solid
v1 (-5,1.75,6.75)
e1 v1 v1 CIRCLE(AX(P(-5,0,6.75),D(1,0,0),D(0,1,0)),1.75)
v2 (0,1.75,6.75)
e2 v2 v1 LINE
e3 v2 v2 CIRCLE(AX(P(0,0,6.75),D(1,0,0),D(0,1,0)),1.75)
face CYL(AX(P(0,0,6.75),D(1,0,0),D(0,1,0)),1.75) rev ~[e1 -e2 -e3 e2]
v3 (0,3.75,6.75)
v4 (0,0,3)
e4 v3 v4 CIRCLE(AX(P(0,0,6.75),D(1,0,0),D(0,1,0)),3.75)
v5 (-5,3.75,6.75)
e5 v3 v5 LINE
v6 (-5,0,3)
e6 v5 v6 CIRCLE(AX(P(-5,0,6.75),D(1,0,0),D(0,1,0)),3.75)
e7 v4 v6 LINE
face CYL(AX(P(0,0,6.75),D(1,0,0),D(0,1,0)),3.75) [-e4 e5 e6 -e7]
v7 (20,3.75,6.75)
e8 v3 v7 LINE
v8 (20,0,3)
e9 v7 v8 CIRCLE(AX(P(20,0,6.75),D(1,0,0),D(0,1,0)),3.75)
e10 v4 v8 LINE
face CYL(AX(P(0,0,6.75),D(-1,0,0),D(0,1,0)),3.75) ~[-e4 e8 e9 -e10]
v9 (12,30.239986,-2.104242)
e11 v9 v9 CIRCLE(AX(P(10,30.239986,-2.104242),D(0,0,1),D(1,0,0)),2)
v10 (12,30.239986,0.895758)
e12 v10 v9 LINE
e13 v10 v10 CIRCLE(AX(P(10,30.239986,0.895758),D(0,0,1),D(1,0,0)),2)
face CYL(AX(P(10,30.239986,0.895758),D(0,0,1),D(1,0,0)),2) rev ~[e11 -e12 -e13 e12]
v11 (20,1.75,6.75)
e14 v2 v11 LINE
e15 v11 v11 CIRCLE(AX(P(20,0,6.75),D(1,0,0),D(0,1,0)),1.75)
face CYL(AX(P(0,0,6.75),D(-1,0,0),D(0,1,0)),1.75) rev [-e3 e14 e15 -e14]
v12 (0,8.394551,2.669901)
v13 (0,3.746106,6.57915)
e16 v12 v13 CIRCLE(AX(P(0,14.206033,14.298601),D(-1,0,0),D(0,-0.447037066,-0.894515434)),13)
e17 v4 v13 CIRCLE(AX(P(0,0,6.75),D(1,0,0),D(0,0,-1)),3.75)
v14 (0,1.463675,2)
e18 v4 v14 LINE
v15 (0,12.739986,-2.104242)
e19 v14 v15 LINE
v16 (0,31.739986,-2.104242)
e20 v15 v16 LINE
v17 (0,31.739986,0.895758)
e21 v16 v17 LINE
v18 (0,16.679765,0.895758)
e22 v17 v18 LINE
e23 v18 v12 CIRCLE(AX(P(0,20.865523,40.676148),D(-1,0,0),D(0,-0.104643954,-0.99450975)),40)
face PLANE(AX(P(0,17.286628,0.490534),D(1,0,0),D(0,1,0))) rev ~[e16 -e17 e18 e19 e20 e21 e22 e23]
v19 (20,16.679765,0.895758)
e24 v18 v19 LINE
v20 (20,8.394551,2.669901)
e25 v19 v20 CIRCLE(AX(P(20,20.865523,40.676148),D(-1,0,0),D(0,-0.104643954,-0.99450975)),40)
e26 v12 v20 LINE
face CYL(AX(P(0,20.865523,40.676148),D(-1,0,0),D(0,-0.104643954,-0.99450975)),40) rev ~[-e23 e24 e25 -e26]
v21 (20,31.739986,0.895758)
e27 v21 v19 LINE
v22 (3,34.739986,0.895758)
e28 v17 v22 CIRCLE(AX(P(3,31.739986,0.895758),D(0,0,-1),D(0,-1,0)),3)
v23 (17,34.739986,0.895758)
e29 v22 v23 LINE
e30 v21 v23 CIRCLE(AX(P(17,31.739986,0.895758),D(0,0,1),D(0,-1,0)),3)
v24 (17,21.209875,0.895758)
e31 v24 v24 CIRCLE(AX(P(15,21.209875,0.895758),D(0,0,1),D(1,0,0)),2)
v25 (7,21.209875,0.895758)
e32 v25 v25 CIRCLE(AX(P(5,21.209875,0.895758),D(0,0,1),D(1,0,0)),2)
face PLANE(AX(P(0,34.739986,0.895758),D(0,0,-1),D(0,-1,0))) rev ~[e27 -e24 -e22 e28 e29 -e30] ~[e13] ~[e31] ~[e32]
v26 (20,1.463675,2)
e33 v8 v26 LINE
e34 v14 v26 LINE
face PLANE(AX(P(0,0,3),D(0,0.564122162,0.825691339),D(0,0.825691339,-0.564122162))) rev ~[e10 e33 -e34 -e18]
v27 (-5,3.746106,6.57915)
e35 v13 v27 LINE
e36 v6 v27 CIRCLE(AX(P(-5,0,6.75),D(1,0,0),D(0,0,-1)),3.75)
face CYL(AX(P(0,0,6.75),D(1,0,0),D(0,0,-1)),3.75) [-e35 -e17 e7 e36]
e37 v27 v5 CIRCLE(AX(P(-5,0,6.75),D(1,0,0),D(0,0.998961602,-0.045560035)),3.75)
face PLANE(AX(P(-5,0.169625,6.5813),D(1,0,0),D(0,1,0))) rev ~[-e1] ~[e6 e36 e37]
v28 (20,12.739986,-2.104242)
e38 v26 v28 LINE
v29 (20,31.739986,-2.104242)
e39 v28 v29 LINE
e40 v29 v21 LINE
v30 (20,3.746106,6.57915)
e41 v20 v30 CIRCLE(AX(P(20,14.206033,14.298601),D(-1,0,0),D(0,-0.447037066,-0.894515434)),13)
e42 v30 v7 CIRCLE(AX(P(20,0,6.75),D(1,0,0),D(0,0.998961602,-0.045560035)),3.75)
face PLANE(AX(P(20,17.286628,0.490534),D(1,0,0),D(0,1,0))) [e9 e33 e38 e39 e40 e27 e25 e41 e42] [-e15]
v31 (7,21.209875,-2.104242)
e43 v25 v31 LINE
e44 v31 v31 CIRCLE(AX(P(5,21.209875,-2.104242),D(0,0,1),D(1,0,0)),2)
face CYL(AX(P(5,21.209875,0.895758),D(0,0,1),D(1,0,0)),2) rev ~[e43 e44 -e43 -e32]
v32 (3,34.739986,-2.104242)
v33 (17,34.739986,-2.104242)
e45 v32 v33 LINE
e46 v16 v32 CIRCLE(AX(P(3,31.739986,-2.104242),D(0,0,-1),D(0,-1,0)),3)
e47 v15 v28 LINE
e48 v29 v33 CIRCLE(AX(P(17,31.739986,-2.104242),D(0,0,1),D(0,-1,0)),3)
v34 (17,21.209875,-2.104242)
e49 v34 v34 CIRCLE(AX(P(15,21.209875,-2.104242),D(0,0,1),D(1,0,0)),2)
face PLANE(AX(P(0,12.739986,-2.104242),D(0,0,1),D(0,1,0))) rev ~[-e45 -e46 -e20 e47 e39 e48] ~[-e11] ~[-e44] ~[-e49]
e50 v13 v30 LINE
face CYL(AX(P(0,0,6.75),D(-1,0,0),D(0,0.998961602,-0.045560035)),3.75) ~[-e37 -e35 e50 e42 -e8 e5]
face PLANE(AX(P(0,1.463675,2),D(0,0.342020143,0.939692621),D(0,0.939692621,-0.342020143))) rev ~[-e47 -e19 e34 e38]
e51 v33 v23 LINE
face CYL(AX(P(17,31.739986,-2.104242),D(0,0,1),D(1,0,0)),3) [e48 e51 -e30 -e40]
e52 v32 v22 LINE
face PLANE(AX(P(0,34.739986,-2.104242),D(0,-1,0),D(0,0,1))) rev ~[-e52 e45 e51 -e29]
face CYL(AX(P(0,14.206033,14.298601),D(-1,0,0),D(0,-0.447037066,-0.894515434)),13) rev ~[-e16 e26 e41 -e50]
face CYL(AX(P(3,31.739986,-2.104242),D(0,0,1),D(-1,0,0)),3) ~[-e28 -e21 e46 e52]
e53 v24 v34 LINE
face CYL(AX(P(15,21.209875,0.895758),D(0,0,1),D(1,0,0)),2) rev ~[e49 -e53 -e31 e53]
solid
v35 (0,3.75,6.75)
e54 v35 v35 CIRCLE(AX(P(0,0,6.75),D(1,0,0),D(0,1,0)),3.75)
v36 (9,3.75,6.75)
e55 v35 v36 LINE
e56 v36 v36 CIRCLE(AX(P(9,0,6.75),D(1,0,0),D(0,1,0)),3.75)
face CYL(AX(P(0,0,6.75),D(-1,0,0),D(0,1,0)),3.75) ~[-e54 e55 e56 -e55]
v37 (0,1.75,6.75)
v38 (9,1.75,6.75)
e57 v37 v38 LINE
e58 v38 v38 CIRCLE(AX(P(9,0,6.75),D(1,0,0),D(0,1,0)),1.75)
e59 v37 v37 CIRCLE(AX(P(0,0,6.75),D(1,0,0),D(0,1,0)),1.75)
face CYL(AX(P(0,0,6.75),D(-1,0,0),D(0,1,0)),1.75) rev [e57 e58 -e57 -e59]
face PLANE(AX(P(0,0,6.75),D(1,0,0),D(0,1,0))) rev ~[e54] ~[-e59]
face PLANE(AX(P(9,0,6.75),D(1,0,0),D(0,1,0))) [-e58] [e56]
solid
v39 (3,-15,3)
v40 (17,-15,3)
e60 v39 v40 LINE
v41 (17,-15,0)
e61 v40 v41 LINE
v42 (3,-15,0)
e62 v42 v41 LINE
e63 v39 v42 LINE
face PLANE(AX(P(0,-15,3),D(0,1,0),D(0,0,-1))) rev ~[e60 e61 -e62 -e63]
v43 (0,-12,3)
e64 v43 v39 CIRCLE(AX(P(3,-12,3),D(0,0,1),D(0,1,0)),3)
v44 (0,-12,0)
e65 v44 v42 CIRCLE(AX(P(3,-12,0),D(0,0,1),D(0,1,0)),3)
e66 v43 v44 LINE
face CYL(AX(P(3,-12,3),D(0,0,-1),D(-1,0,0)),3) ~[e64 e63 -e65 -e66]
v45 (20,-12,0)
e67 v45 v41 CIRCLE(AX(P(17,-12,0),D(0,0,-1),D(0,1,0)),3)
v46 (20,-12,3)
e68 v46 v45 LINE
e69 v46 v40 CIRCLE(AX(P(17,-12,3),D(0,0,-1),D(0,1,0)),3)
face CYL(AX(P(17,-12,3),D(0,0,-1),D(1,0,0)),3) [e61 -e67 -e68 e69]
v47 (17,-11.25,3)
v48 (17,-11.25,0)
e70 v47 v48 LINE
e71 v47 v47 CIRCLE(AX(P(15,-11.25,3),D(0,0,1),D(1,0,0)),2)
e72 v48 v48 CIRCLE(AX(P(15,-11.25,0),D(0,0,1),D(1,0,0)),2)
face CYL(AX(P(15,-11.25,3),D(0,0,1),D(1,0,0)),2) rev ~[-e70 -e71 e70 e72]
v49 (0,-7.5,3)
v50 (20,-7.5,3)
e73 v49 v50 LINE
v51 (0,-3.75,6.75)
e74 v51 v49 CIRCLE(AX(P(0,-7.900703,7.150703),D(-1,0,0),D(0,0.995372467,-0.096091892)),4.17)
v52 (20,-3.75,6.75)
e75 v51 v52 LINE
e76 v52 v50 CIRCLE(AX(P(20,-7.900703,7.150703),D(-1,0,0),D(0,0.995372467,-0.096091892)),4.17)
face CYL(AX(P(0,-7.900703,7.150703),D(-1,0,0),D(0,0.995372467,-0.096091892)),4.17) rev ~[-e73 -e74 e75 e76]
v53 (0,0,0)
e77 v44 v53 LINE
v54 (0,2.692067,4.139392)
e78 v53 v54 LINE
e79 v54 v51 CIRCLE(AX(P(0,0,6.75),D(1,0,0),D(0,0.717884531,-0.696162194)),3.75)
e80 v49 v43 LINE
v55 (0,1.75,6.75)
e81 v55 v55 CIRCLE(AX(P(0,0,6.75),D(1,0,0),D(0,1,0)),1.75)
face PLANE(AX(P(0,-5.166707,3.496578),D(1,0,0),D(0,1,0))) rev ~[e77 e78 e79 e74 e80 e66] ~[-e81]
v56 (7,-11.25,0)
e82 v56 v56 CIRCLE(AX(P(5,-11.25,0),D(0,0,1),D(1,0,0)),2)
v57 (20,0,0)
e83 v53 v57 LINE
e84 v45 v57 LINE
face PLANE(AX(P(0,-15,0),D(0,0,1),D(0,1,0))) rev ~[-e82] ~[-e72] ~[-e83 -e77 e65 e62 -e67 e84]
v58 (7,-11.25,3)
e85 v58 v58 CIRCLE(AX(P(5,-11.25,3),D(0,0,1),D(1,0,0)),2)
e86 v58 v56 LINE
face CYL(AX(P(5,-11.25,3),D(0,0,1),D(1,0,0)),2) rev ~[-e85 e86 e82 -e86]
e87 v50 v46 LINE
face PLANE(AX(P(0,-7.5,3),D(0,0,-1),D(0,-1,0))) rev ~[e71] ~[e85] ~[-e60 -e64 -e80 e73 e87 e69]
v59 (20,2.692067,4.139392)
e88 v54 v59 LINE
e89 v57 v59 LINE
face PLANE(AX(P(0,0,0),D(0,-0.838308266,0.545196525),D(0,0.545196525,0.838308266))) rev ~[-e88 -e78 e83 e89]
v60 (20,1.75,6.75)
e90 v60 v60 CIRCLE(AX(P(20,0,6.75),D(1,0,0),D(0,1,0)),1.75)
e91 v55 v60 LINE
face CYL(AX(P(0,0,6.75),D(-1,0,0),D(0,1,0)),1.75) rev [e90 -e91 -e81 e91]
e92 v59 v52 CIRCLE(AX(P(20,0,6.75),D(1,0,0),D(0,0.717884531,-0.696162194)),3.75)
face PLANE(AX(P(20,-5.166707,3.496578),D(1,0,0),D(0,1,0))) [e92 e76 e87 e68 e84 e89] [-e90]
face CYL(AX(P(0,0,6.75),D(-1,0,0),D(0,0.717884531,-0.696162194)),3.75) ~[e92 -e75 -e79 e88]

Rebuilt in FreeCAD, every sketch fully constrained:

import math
import FreeCAD as App
import Part
import Sketcher
Q = App.Units.Quantity


def edges_at(feature, points):
    """Names of the edges that pass closest to the given points."""
    edges = feature.Shape.Edges
    near = lambda p: min(range(len(edges)), key=lambda i: edges[i].distToShape(Part.Vertex(*p))[0])
    return sorted({f"Edge{near(p) + 1}" for p in points})

doc = App.newDocument("Part")
body = doc.addObject("PartDesign::Body", "Body")

# Sketch on YZ plane
sketch1 = body.newObject("Sketcher::SketchObject", "Sketch")
sketch1.AttachmentSupport = (doc.getObject("YZ_Plane"), [""])
sketch1.MapMode = "FlatFace"
sketch1.addGeometry([
    Part.LineSegment(App.Vector(0, 0, 0), App.Vector(2.7, 4.1, 0)),  # 0
    Part.ArcOfCircle(Part.Circle(App.Vector(0, 6.8, 0), App.Vector(0, 0, 1), 3.8), math.radians(-44), math.radians(180)),  # 1
    Part.ArcOfCircle(Part.Circle(App.Vector(-7.9, 7.2, 0), App.Vector(0, 0, 1), 4.2), math.radians(-84), math.radians(-6)),  # 2
    Part.LineSegment(App.Vector(-7.5, 3, 0), App.Vector(-15, 3, 0)),  # 3
    Part.LineSegment(App.Vector(-15, 3, 0), App.Vector(-15, 0, 0)),  # 4
    Part.LineSegment(App.Vector(-15, 0, 0), App.Vector(0, 0, 0)),  # 5
    Part.Circle(App.Vector(0, 6.8, 0), App.Vector(0, 0, 1), 1.8),  # 6
], False)
sketch1.addConstraint([
    Sketcher.Constraint("Coincident", 0, 2, 1, 1),
    Sketcher.Constraint("Coincident", 1, 2, 2, 2),
    Sketcher.Constraint("Coincident", 2, 1, 3, 1),
    Sketcher.Constraint("Coincident", 3, 2, 4, 1),
    Sketcher.Constraint("Coincident", 4, 2, 5, 1),
    Sketcher.Constraint("Coincident", 5, 2, 0, 1),
    Sketcher.Constraint("Horizontal", 3),
    Sketcher.Constraint("Vertical", 4),
    Sketcher.Constraint("Horizontal", 5),
    Sketcher.Constraint("Coincident", 5, 2, -1, 1),
    Sketcher.Constraint("Coincident", 6, 3, 1, 3),
    Sketcher.Constraint("PointOnObject", 1, 3, -2),
    Sketcher.Constraint("Horizontal", 6, 3, 1, 2),
    Sketcher.Constraint("Diameter", 6, Q("3.5 mm")),
    Sketcher.Constraint("DistanceX", 5, 1, 5, 2, Q("15 mm")),
    Sketcher.Constraint("DistanceY", 4, 2, 4, 1, Q("3 mm")),
    Sketcher.Constraint("Radius", 1, Q("3.75 mm")),
    Sketcher.Constraint("Radius", 2, Q("4.17 mm")),
    Sketcher.Constraint("DistanceX", 3, 2, 3, 1, Q("7.5 mm")),
    Sketcher.Constraint("DistanceY", -1, 1, 1, 3, Q("6.75 mm")),
    Sketcher.Constraint("Distance", 0, Q("4.937792 mm")),
])
pad1 = body.newObject("PartDesign::Pad", "Pad")
pad1.Profile = sketch1
pad1.Length = 20

# Sketch on XY plane
sketch2 = body.newObject("Sketcher::SketchObject", "Sketch001")
sketch2.AttachmentSupport = (doc.getObject("XY_Plane"), [""])
sketch2.MapMode = "FlatFace"
sketch2.AttachmentOffset = App.Placement(App.Vector(0, 0, 3), App.Rotation())
sketch2.addGeometry([
    Part.Circle(App.Vector(5, -11.2, 0), App.Vector(0, 0, 1), 2),
    Part.Circle(App.Vector(15, -11.2, 0), App.Vector(0, 0, 1), 2),
], False)
sketch2.addConstraint([
    Sketcher.Constraint("Equal", 0, 1),
    Sketcher.Constraint("Horizontal", 0, 3, 1, 3),
    Sketcher.Constraint("Diameter", 0, Q("4 mm")),
    Sketcher.Constraint("DistanceX", -1, 1, 0, 3, Q("5 mm")),
    Sketcher.Constraint("DistanceX", -1, 1, 1, 3, Q("15 mm")),
    Sketcher.Constraint("DistanceY", 0, 3, -1, 1, Q("11.25 mm")),
])
pocket1 = body.newObject("PartDesign::Pocket", "Pocket")
pocket1.Profile = sketch2
pocket1.Type = "ThroughAll"
doc.recompute()

fillet = body.newObject("PartDesign::Fillet", "Fillet")
fillet.Base = (pocket1, edges_at(pocket1, [(0, -15, 1.5), (20, -15, 1.5)]))
fillet.Radius = 3
body2 = doc.addObject("PartDesign::Body", "Body001")

# Sketch on YZ plane
sketch3 = body2.newObject("Sketcher::SketchObject", "Sketch002")
sketch3.AttachmentSupport = (doc.getObject("YZ_Plane001"), [""])
sketch3.MapMode = "FlatFace"
sketch3.addGeometry([
    Part.ArcOfCircle(Part.Circle(App.Vector(0, 6.75, 0), App.Vector(0, 0, 1), 3.75), math.radians(-2.61), math.radians(0)),
    Part.ArcOfCircle(Part.Circle(App.Vector(0, 6.75, 0), App.Vector(0, 0, 1), 3.75), math.radians(0), math.radians(270)),
    Part.ArcOfCircle(Part.Circle(App.Vector(0, 6.75, 0), App.Vector(0, 0, 1), 3.75), math.radians(-90), math.radians(-3)),
    Part.Circle(App.Vector(0, 6.75, 0), App.Vector(0, 0, 1), 1.75),
], False)
sketch3.addConstraint([
    Sketcher.Constraint("Tangent", 0, 2, 1, 1),
    Sketcher.Constraint("Tangent", 1, 2, 2, 1),
    Sketcher.Constraint("Tangent", 2, 2, 0, 1),
    Sketcher.Constraint("Coincident", 3, 3, 0, 3),
    Sketcher.Constraint("PointOnObject", 0, 3, -2),
    Sketcher.Constraint("PointOnObject", 1, 2, -2),
    Sketcher.Constraint("Horizontal", 3, 3, 0, 2),
    Sketcher.Constraint("Diameter", 3, Q("3.5 mm")),
    Sketcher.Constraint("Radius", 0, Q("3.75 mm")),
    Sketcher.Constraint("DistanceY", -1, 1, 1, 2, Q("3 mm")),
    Sketcher.Constraint("DistanceY", -1, 1, 2, 2, Q("6.57915 mm")),
])
pad2 = body2.newObject("PartDesign::Pad", "Pad001")
pad2.Profile = sketch3
pad2.Length = 5
pad2.Reversed = True

# Sketch on YZ plane
sketch4 = body2.newObject("Sketcher::SketchObject", "Sketch003")
sketch4.AttachmentSupport = (doc.getObject("YZ_Plane001"), [""])
sketch4.MapMode = "FlatFace"
sketch4.addGeometry([
    Part.LineSegment(App.Vector(0, 3, 0), App.Vector(1.46, 2, 0)),  # 0
    Part.LineSegment(App.Vector(1.46, 2, 0), App.Vector(12.74, -2.1, 0)),  # 1
    Part.LineSegment(App.Vector(12.74, -2.1, 0), App.Vector(34.74, -2.1, 0)),  # 2
    Part.LineSegment(App.Vector(34.74, -2.1, 0), App.Vector(34.74, 0.9, 0)),  # 3
    Part.LineSegment(App.Vector(34.74, 0.9, 0), App.Vector(16.68, 0.9, 0)),  # 4
    Part.ArcOfCircle(Part.Circle(App.Vector(20.87, 40.68, 0), App.Vector(0, 0, 1), 40), math.radians(-108.17), math.radians(-96.01)),  # 5
    Part.ArcOfCircle(Part.Circle(App.Vector(14.21, 14.3, 0), App.Vector(0, 0, 1), 13), math.radians(-144), math.radians(-117)),  # 6
    Part.ArcOfCircle(Part.Circle(App.Vector(0, 6.75, 0), App.Vector(0, 0, 1), 3.75), math.radians(-2.61), math.radians(0)),  # 7
    Part.ArcOfCircle(Part.Circle(App.Vector(0, 6.75, 0), App.Vector(0, 0, 1), 3.75), math.radians(0), math.radians(270)),  # 8
    Part.Circle(App.Vector(0, 6.75, 0), App.Vector(0, 0, 1), 1.75),  # 9
], False)
sketch4.addConstraint([
    Sketcher.Constraint("Coincident", 0, 2, 1, 1),
    Sketcher.Constraint("Coincident", 1, 2, 2, 1),
    Sketcher.Constraint("Coincident", 2, 2, 3, 1),
    Sketcher.Constraint("Coincident", 3, 2, 4, 1),
    Sketcher.Constraint("Coincident", 4, 2, 5, 2),
    Sketcher.Constraint("Coincident", 5, 1, 6, 2),
    Sketcher.Constraint("Coincident", 6, 1, 7, 1),
    Sketcher.Constraint("Tangent", 7, 2, 8, 1),
    Sketcher.Constraint("Coincident", 8, 2, 0, 1),
    Sketcher.Constraint("Horizontal", 2),
    Sketcher.Constraint("Vertical", 3),
    Sketcher.Constraint("Horizontal", 4),
    Sketcher.Constraint("Coincident", 9, 3, 7, 3),
    Sketcher.Constraint("Equal", 7, 8),
    Sketcher.Constraint("PointOnObject", 7, 3, -2),
    Sketcher.Constraint("PointOnObject", 8, 2, -2),
    Sketcher.Constraint("Horizontal", 9, 3, 7, 2),
    Sketcher.Constraint("Radius", 5, Q("40 mm")),
    Sketcher.Constraint("Radius", 6, Q("13 mm")),
    Sketcher.Constraint("Diameter", 9, Q("3.5 mm")),
    Sketcher.Constraint("DistanceX", 2, 1, 2, 2, Q("22 mm")),
    Sketcher.Constraint("DistanceY", 3, 1, 3, 2, Q("3 mm")),
    Sketcher.Constraint("Angle", 1, Q("-20 deg")),
    Sketcher.Constraint("Radius", 7, Q("3.75 mm")),
    Sketcher.Constraint("Distance", 1, Q("12 mm")),
    Sketcher.Constraint("DistanceY", -1, 1, 0, 2, Q("2 mm")),
    Sketcher.Constraint("DistanceY", -1, 1, 8, 2, Q("3 mm")),
    Sketcher.Constraint("DistanceX", 4, 2, 4, 1, Q("18.060221 mm")),
    Sketcher.Constraint("DistanceY", -1, 1, 6, 3, Q("14.298601 mm")),
    Sketcher.Constraint("DistanceY", -1, 1, 5, 1, Q("2.669901 mm")),
    Sketcher.Constraint("DistanceY", -1, 1, 5, 3, Q("40.676148 mm")),
    Sketcher.Constraint("DistanceX", -1, 1, 5, 1, Q("8.394551 mm")),
])
pad3 = body2.newObject("PartDesign::Pad", "Pad002")
pad3.Profile = sketch4
pad3.Length = 20
doc.recompute()

fillet2 = body2.newObject("PartDesign::Fillet", "Fillet001")
fillet2.Base = (pad3, edges_at(pad3, [(20, 34.74, -0.604), (0, 34.74, -0.604)]))
fillet2.Radius = 3

# Sketch on XY plane
sketch5 = body2.newObject("Sketcher::SketchObject", "Sketch004")
sketch5.AttachmentSupport = (doc.getObject("XY_Plane001"), [""])
sketch5.MapMode = "FlatFace"
sketch5.AttachmentOffset = App.Placement(App.Vector(0, 0, 0.895758), App.Rotation())
sketch5.addGeometry([
    Part.Circle(App.Vector(10, 30.2, 0), App.Vector(0, 0, 1), 2),
    Part.Circle(App.Vector(5, 21.2, 0), App.Vector(0, 0, 1), 2),
    Part.Circle(App.Vector(15, 21.2, 0), App.Vector(0, 0, 1), 2),
], False)
sketch5.addConstraint([
    Sketcher.Constraint("Equal", 0, 1),
    Sketcher.Constraint("Equal", 1, 2),
    Sketcher.Constraint("Horizontal", 1, 3, 2, 3),
    Sketcher.Constraint("Diameter", 0, Q("4 mm")),
    Sketcher.Constraint("DistanceX", -1, 1, 0, 3, Q("10 mm")),
    Sketcher.Constraint("DistanceX", -1, 1, 1, 3, Q("5 mm")),
    Sketcher.Constraint("DistanceX", -1, 1, 2, 3, Q("15 mm")),
    Sketcher.Constraint("DistanceY", 1, 3, 0, 3, Q("9.030111 mm")),
    Sketcher.Constraint("DistanceY", -1, 1, 0, 3, Q("30.239986 mm")),
])
pocket2 = body2.newObject("PartDesign::Pocket", "Pocket001")
pocket2.Profile = sketch5
pocket2.Type = "ThroughAll"
body3 = doc.addObject("PartDesign::Body", "Body002")

# Sketch on YZ plane
sketch6 = body3.newObject("Sketcher::SketchObject", "Sketch005")
sketch6.AttachmentSupport = (doc.getObject("YZ_Plane002"), [""])
sketch6.MapMode = "FlatFace"
sketch6.addGeometry([
    Part.Circle(App.Vector(0, 6.8, 0), App.Vector(0, 0, 1), 3.8),
    Part.Circle(App.Vector(0, 6.8, 0), App.Vector(0, 0, 1), 1.8),
], False)
sketch6.addConstraint([
    Sketcher.Constraint("Coincident", 1, 3, 0, 3),
    Sketcher.Constraint("PointOnObject", 0, 3, -2),
    Sketcher.Constraint("Diameter", 0, Q("7.5 mm")),
    Sketcher.Constraint("Diameter", 1, Q("3.5 mm")),
    Sketcher.Constraint("DistanceY", -1, 1, 0, 3, Q("6.75 mm")),
])
pad4 = body3.newObject("PartDesign::Pad", "Pad003")
pad4.Profile = sketch6
pad4.Length = 9

doc.recompute()
